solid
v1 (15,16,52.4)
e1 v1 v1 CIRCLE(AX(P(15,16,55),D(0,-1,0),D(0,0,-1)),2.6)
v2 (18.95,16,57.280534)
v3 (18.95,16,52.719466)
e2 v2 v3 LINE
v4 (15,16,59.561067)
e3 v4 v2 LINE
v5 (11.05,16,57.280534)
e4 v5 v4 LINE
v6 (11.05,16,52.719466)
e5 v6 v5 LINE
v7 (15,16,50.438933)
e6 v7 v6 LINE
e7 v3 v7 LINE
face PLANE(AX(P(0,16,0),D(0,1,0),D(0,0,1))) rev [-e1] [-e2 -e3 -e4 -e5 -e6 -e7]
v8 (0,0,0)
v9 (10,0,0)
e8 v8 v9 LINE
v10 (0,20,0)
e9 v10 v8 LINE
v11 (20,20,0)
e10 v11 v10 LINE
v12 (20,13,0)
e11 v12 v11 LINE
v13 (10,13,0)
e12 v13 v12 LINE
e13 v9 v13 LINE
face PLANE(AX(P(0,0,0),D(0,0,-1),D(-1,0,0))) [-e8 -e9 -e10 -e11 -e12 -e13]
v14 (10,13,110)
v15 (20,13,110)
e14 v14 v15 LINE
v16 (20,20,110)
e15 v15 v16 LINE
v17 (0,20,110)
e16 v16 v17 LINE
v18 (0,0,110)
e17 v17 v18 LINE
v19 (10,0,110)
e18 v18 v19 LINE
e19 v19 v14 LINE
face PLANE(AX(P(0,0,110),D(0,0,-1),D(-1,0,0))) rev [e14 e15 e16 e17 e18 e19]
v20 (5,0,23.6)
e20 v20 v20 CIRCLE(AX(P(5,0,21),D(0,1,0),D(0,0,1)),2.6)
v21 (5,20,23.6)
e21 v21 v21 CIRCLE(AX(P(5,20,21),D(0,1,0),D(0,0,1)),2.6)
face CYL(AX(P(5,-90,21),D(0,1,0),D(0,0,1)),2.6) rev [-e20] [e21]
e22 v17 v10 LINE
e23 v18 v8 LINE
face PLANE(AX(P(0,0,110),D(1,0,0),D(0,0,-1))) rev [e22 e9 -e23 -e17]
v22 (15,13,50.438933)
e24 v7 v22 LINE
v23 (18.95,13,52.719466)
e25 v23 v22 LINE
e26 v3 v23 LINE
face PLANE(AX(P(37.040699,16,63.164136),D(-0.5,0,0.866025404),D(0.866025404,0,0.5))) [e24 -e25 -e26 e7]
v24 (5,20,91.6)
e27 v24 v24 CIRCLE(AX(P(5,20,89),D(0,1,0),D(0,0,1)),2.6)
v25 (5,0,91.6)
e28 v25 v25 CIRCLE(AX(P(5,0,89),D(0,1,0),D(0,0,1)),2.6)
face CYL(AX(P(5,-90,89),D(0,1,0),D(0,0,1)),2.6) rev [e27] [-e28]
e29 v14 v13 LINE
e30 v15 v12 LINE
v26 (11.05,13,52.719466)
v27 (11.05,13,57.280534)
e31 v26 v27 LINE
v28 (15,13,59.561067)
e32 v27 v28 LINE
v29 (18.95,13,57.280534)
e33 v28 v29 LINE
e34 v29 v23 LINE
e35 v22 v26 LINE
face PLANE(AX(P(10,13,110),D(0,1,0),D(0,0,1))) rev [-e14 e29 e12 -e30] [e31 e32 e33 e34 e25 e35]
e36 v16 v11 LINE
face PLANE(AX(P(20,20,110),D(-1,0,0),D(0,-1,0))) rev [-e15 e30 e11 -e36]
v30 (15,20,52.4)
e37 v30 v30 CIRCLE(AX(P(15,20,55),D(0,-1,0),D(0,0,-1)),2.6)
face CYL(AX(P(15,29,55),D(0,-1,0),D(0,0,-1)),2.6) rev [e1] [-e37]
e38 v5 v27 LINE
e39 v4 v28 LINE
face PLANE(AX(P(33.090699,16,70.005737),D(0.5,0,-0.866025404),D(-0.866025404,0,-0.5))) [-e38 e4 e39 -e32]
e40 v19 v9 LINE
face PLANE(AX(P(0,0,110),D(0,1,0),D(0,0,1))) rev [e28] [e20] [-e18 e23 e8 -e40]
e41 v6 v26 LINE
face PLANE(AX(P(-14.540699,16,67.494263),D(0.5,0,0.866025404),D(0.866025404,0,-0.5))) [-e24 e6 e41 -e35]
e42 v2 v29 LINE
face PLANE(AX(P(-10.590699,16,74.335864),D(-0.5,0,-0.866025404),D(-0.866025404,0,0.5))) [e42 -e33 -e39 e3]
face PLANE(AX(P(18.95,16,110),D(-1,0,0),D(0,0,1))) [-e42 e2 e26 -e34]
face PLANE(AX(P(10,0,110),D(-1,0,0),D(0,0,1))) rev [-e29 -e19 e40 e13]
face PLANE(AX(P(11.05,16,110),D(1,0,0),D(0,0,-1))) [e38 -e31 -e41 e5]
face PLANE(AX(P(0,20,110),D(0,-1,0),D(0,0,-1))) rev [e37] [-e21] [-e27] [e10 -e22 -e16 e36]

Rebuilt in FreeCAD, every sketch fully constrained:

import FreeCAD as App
import Part
import Sketcher

V = App.Vector
Q = App.Units.Quantity


def add_polygon(sketch, points):
    """Adds a closed chain of lines whose ends are joined by coincident constraints."""
    first, n = sketch.GeometryCount, len(points)
    for a, b in zip(points, points[1:] + points[:1]):
        sketch.addGeometry(Part.LineSegment(App.Vector(*a, 0), App.Vector(*b, 0)), False)
    for i in range(n):
        sketch.addConstraint(Sketcher.Constraint("Coincident", first + i, 2, first + (i + 1) % n, 1))

doc = App.newDocument("Part")
body = doc.addObject("PartDesign::Body", "Body")

# Sketch on XY plane
sketch1 = body.newObject("Sketcher::SketchObject", "Sketch")
sketch1.AttachmentSupport = (doc.getObject("XY_Plane"), [""])
sketch1.MapMode = "FlatFace"
add_polygon(sketch1, [(0, 0), (10, 0), (10, 13), (20, 13), (20, 20), (0, 20)])  # lines 0-5
sketch1.addConstraint(Sketcher.Constraint("Horizontal", 0))
sketch1.addConstraint(Sketcher.Constraint("Vertical", 1))
sketch1.addConstraint(Sketcher.Constraint("Horizontal", 2))
sketch1.addConstraint(Sketcher.Constraint("Vertical", 3))
sketch1.addConstraint(Sketcher.Constraint("Horizontal", 4))
sketch1.addConstraint(Sketcher.Constraint("Vertical", 5))
sketch1.addConstraint(Sketcher.Constraint("Coincident", 5, 2, -1, 1))
sketch1.addConstraint(Sketcher.Constraint("Equal", 0, 2))
sketch1.addConstraint(Sketcher.Constraint("Equal", 4, 5))
sketch1.addConstraint(Sketcher.Constraint("DistanceX", 0, 1, 0, 2, 10.0))
sketch1.addConstraint(Sketcher.Constraint("DistanceY", 1, 1, 1, 2, 13.0))
pad1 = body.newObject("PartDesign::Pad", "Pad")
pad1.Profile = sketch1
pad1.Length = 110

# Sketch on XZ plane
sketch2 = body.newObject("Sketcher::SketchObject", "Sketch001")
sketch2.AttachmentSupport = (doc.getObject("XZ_Plane"), [""])
sketch2.MapMode = "FlatFace"
sketch2.AttachmentOffset = App.Placement(V(0, 0, -20), App.Rotation())
sketch2.addGeometry(Part.Circle(V(5, 21, 0), V(0, 0, 1), 2.6), False)
sketch2.addGeometry(Part.Circle(V(5, 89, 0), V(0, 0, 1), 2.6), False)
sketch2.addConstraint(Sketcher.Constraint("Equal", 0, 1))
sketch2.addConstraint(Sketcher.Constraint("Vertical", 0, 3, 1, 3))
sketch2.addConstraint(Sketcher.Constraint("Diameter", 0, 5.2))
sketch2.addConstraint(Sketcher.Constraint("DistanceX", -1, 1, 0, 3, 5.0))
sketch2.addConstraint(Sketcher.Constraint("DistanceY", -1, 1, 0, 3, 21.0))
sketch2.addConstraint(Sketcher.Constraint("DistanceY", -1, 1, 1, 3, 89.0))
pocket1 = body.newObject("PartDesign::Pocket", "Pocket")
pocket1.Profile = sketch2
pocket1.Length = 110
pocket1.Reversed = True

# Sketch on XZ plane
sketch3 = body.newObject("Sketcher::SketchObject", "Sketch002")
sketch3.AttachmentSupport = (doc.getObject("XZ_Plane"), [""])
sketch3.MapMode = "FlatFace"
sketch3.AttachmentOffset = App.Placement(V(0, 0, -13), App.Rotation())
add_polygon(sketch3, [(15, 50.4), (11.1, 52.7), (11.1, 57.3), (15, 59.6), (18.9, 57.3), (18.9, 52.7)])  # lines 0-5
sketch3.addConstraint(Sketcher.Constraint("Vertical", 1))
sketch3.addConstraint(Sketcher.Constraint("Vertical", 4))
sketch3.addConstraint(Sketcher.Constraint("Parallel", 0, 3))
sketch3.addConstraint(Sketcher.Constraint("Parallel", 2, 5))
sketch3.addConstraint(Sketcher.Constraint("Horizontal", 1, 2, 3, 2))
sketch3.addConstraint(Sketcher.Constraint("Horizontal", 0, 2, 4, 2))
sketch3.addConstraint(Sketcher.Constraint("Vertical", 2, 2, 5, 2))
sketch3.addConstraint(Sketcher.Constraint("Angle", 0, Q("150 deg")))
sketch3.addConstraint(Sketcher.Constraint("DistanceX", -1, 1, 2, 2, 15.0))
sketch3.addConstraint(Sketcher.Constraint("DistanceX", 1, 2, 3, 2, 7.9))
sketch3.addConstraint(Sketcher.Constraint("DistanceY", 0, 2, 2, 2, 6.841601))
sketch3.addConstraint(Sketcher.Constraint("DistanceY", -1, 1, 0, 2, 52.719466))
pocket2 = body.newObject("PartDesign::Pocket", "Pocket001")
pocket2.Profile = sketch3
pocket2.Length = 3

# Sketch on XZ plane
sketch4 = body.newObject("Sketcher::SketchObject", "Sketch003")
sketch4.AttachmentSupport = (doc.getObject("XZ_Plane"), [""])
sketch4.MapMode = "FlatFace"
sketch4.AttachmentOffset = App.Placement(V(0, 0, -16), App.Rotation())
sketch4.addGeometry(Part.Circle(V(15, 55, 0), V(0, 0, 1), 2.6), False)
sketch4.addConstraint(Sketcher.Constraint("Diameter", 0, 5.2))
sketch4.addConstraint(Sketcher.Constraint("DistanceX", -1, 1, 0, 3, 15.0))
sketch4.addConstraint(Sketcher.Constraint("DistanceY", -1, 1, 0, 3, 55.0))
pocket3 = body.newObject("PartDesign::Pocket", "Pocket002")
pocket3.Profile = sketch4
pocket3.Length = 13

doc.recompute()
